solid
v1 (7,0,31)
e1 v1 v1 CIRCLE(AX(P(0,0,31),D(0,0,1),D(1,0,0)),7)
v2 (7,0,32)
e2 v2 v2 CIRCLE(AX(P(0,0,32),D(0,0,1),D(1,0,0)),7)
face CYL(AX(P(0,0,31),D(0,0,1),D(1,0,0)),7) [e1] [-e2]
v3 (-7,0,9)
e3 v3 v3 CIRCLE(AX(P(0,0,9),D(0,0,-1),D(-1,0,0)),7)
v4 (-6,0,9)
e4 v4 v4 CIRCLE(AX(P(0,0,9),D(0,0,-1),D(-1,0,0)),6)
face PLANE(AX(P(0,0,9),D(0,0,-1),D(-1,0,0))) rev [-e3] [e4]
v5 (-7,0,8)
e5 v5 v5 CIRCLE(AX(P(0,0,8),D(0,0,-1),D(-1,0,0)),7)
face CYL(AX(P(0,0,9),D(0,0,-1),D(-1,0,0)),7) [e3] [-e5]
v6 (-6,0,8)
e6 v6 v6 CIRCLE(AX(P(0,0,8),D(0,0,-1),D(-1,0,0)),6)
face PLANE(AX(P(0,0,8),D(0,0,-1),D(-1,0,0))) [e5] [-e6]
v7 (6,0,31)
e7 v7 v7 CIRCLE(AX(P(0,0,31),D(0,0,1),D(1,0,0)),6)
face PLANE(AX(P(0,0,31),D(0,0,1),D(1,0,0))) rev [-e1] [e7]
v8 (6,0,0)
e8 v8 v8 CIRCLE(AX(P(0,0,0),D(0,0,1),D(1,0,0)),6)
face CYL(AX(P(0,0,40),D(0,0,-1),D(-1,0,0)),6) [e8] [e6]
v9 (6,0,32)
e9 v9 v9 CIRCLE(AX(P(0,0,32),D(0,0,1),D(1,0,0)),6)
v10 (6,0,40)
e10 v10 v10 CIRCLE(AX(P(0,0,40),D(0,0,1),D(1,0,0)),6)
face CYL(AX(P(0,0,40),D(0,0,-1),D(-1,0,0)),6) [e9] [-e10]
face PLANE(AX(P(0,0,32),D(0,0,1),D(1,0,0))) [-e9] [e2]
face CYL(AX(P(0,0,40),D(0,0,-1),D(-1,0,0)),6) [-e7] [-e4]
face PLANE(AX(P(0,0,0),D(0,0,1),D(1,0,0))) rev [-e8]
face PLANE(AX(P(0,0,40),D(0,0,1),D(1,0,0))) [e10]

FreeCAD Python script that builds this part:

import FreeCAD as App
import Part
import Sketcher
from FreeCAD import Vector
Q = App.Units.Quantity

doc = App.newDocument("Part")
body = doc.addObject("PartDesign::Body", "Body")

# Sketch on XY plane
sketch1 = body.newObject("Sketcher::SketchObject", "Sketch")
sketch1.AttachmentSupport = (doc.getObject("XY_Plane"), [""])
sketch1.MapMode = "FlatFace"
sketch1.addGeometry(Part.Circle(Vector(0, 0, 0), Vector(0, 0, 1), 6), False)
sketch1.addConstraint(Sketcher.Constraint("Coincident", 0, 3, -1, 1))
sketch1.addConstraint(Sketcher.Constraint("Diameter", 0, Q("12 mm")))
pad1 = body.newObject("PartDesign::Pad", "Pad")
pad1.Profile = sketch1
pad1.Length = 40

# Sketch on XY plane
sketch2 = body.newObject("Sketcher::SketchObject", "Sketch001")
sketch2.AttachmentSupport = (doc.getObject("XY_Plane"), [""])
sketch2.MapMode = "FlatFace"
sketch2.AttachmentOffset = App.Placement(Vector(0, 0, 8), App.Rotation())
sketch2.addGeometry(Part.Circle(Vector(0, 0, 0), Vector(0, 0, 1), 7), False)
sketch2.addGeometry(Part.Circle(Vector(0, 0, 0), Vector(0, 0, 1), 6), False)
sketch2.addConstraint(Sketcher.Constraint("Coincident", 0, 3, -1, 1))
sketch2.addConstraint(Sketcher.Constraint("Coincident", 1, 3, -1, 1))
sketch2.addConstraint(Sketcher.Constraint("Diameter", 0, Q("14 mm")))
sketch2.addConstraint(Sketcher.Constraint("Diameter", 1, Q("12 mm")))
pad2 = body.newObject("PartDesign::Pad", "Pad001")
pad2.Profile = sketch2
pad2.Length = 1

# Sketch on XY plane
sketch3 = body.newObject("Sketcher::SketchObject", "Sketch002")
sketch3.AttachmentSupport = (doc.getObject("XY_Plane"), [""])
sketch3.MapMode = "FlatFace"
sketch3.AttachmentOffset = App.Placement(Vector(0, 0, 31), App.Rotation())
sketch3.addGeometry(Part.Circle(Vector(0, 0, 0), Vector(0, 0, 1), 7), False)
sketch3.addGeometry(Part.Circle(Vector(0, 0, 0), Vector(0, 0, 1), 6), False)
sketch3.addConstraint(Sketcher.Constraint("Coincident", 0, 3, -1, 1))
sketch3.addConstraint(Sketcher.Constraint("Coincident", 1, 3, -1, 1))
sketch3.addConstraint(Sketcher.Constraint("Diameter", 0, Q("14 mm")))
sketch3.addConstraint(Sketcher.Constraint("Diameter", 1, Q("12 mm")))
pad3 = body.newObject("PartDesign::Pad", "Pad002")
pad3.Profile = sketch3
pad3.Length = 1

doc.recompute()
